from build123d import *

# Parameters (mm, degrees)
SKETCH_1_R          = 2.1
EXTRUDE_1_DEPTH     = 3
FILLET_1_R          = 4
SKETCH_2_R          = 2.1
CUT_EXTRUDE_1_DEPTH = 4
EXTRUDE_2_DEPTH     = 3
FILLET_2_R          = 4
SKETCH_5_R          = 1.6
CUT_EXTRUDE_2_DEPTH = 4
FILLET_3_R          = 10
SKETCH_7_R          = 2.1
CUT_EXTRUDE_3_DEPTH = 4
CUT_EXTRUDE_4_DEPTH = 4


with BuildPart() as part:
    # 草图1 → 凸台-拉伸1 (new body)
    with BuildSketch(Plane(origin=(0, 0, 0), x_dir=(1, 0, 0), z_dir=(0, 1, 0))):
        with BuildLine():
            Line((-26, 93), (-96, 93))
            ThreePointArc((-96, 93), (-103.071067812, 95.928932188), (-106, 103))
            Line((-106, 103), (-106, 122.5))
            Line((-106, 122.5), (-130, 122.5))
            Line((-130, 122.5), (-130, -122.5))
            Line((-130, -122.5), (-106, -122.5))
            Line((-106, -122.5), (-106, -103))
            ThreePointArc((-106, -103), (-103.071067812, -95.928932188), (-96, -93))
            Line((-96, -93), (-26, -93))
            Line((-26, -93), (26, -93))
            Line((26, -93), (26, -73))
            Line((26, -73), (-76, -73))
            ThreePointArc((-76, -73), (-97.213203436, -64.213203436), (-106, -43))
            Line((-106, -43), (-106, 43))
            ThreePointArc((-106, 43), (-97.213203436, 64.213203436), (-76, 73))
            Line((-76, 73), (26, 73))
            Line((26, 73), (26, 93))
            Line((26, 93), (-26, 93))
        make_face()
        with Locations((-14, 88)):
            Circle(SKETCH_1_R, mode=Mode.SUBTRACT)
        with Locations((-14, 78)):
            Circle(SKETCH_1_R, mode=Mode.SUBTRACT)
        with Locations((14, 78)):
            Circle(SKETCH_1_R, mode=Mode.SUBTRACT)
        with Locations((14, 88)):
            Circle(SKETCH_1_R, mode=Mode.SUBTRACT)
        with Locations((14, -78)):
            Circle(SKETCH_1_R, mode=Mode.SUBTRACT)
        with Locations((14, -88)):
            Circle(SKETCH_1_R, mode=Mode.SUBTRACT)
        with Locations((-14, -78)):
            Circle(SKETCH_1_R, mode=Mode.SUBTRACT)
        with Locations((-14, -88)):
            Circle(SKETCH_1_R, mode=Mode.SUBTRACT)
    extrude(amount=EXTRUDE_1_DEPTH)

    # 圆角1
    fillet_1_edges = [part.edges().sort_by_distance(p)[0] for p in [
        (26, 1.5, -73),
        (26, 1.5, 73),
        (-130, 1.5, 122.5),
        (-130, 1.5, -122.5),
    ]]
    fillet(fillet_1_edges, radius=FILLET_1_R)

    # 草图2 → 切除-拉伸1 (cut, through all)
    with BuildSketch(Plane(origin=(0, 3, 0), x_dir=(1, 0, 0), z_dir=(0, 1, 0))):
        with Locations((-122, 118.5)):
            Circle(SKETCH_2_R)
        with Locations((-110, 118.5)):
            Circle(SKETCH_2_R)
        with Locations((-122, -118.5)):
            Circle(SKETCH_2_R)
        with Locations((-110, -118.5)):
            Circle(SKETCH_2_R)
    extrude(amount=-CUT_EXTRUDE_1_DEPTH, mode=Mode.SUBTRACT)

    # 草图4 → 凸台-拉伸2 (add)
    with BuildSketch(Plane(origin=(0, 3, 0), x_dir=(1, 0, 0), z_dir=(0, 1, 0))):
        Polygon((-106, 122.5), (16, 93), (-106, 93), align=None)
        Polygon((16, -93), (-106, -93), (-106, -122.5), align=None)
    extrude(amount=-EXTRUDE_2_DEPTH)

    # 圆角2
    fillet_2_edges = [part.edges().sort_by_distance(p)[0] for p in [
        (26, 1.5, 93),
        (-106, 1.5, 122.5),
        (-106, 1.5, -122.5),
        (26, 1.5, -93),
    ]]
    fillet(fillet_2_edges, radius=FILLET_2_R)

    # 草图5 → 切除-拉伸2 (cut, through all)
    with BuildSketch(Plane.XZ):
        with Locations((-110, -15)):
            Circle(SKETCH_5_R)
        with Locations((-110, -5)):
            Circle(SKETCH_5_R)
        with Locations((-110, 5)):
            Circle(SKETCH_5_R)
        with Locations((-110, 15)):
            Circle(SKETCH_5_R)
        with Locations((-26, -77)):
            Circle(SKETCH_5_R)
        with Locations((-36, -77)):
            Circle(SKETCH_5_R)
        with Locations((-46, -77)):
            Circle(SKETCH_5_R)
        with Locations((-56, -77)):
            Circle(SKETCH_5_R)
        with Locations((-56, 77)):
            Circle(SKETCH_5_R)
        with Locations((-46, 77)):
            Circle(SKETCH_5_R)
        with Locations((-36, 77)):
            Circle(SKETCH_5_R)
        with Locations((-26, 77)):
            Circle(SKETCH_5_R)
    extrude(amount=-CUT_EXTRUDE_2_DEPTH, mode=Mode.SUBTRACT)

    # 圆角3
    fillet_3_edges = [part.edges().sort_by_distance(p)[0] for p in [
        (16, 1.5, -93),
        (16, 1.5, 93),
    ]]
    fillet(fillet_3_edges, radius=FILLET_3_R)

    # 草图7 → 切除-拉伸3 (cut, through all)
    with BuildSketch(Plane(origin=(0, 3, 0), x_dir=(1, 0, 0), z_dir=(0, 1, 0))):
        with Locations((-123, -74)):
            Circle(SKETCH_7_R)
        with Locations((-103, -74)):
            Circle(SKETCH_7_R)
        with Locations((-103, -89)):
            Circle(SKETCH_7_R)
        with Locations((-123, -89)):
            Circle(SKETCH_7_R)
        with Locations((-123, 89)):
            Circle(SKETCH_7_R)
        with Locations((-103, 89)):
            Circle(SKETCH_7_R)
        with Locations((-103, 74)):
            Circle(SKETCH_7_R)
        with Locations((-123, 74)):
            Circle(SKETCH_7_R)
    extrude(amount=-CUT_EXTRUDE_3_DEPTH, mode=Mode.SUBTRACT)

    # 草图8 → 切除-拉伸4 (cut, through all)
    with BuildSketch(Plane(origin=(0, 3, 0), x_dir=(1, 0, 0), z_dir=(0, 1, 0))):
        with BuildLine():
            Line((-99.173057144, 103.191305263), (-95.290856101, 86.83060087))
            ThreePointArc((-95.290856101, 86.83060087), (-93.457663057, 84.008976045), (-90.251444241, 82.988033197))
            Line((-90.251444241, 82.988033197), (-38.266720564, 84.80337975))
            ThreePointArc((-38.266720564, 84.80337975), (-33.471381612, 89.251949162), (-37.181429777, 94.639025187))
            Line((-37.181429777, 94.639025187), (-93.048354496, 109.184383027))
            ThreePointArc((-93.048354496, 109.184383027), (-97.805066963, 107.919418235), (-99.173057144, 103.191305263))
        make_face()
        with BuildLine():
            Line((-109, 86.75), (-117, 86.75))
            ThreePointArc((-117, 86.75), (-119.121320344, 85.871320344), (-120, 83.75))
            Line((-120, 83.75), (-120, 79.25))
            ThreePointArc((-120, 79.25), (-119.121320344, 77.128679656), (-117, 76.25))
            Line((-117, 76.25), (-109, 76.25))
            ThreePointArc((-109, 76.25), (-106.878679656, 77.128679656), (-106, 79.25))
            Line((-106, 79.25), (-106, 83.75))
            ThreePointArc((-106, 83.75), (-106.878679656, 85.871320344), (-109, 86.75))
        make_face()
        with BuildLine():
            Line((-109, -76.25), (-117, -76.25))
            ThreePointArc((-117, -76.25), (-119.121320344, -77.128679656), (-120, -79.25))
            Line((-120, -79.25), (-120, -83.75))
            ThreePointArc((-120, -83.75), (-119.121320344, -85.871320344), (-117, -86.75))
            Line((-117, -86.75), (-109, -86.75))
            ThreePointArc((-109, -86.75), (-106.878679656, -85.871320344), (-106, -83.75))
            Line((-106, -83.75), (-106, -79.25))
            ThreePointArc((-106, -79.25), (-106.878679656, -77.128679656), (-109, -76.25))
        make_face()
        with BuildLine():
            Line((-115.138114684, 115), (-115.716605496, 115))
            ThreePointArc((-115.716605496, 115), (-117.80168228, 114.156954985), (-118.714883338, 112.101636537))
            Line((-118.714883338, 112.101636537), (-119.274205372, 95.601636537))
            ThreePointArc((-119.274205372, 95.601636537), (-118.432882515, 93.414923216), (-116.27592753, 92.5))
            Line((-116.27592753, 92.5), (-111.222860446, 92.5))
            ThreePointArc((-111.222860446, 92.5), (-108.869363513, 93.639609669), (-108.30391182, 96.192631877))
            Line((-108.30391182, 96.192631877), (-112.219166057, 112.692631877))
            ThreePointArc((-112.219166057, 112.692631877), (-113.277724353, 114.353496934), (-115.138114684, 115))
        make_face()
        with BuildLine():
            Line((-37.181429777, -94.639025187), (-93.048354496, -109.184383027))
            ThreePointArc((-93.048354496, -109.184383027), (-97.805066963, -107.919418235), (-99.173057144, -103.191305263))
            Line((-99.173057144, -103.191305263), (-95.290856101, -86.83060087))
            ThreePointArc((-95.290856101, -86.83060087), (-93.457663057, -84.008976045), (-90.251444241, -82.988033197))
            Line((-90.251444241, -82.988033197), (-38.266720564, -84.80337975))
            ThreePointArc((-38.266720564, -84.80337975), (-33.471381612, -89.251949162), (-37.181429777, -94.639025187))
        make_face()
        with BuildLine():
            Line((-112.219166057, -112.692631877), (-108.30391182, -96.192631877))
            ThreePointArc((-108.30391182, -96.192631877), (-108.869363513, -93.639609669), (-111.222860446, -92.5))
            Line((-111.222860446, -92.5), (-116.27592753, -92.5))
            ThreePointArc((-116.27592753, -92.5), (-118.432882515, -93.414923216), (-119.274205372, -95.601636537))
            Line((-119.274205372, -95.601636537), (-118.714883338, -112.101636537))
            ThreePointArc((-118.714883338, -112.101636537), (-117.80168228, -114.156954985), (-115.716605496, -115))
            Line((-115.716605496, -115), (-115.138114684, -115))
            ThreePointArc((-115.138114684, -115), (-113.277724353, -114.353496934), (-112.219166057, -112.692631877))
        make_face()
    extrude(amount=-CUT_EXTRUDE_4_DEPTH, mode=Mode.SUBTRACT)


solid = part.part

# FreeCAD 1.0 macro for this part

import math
import FreeCAD as App
import Part
import Sketcher

V = App.Vector
Q = App.Units.Quantity


def edges_at(feature, points):
    """Names of the edges that pass closest to the given points."""
    edges = feature.Shape.Edges
    near = lambda p: min(range(len(edges)), key=lambda i: edges[i].distToShape(Part.Vertex(*p))[0])
    return sorted({f"Edge{near(p) + 1}" for p in points})

doc = App.newDocument("Part")
params = doc.addObject("Spreadsheet::Sheet", "Params")
for row, (alias, value) in enumerate([
    ("sketch1_radius", "10 mm"),
    ("sketch1_radius2", "30 mm"),
    ("sketch1_diameter", "4.2 mm"),
    ("sketch1_width", "24 mm"),
    ("sketch1_width2", "122 mm"),
    ("pad1_length", "3 mm"),
    ("fillet_radius", "4 mm"),
    ("sketch2_diameter", "4.2 mm"),
    ("sketch3_width", "122 mm"),
    ("sketch3_height", "29.5 mm"),
    ("pad2_length", "3 mm"),
    ("fillet2_radius", "4 mm"),
    ("sketch4_diameter", "3.2 mm"),
    ("fillet3_radius", "10 mm"),
    ("sketch5_diameter", "4.2 mm"),
    ("sketch6_radius", "5 mm"),
    ("sketch6_radius2", "3 mm"),
    ("sketch6_width", "8 mm"),
    ("sketch6_height", "4.5 mm"),
], start=1):
    params.set(f"A{row}", alias)
    params.set(f"B{row}", "=" + value)
    params.setAlias(f"B{row}", alias)

body = doc.addObject("PartDesign::Body", "Body")

sketch1 = body.newObject("Sketcher::SketchObject", "Sketch")
sketch1.AttachmentSupport = (doc.getObject("XZ_Plane"), [""])
sketch1.MapMode = "FlatFace"
sketch1.addGeometry(Part.ArcOfCircle(Part.Circle(V(-96, -103, 0), V(0, 0, 1), 10), math.radians(90), math.radians(180)), False)
sketch1.addGeometry(Part.LineSegment(V(-106, -103, 0), V(-106, -122.5, 0)), False)
sketch1.addGeometry(Part.LineSegment(V(-106, -122.5, 0), V(-130, -122.5, 0)), False)
sketch1.addGeometry(Part.LineSegment(V(-130, -122.5, 0), V(-130, 122.5, 0)), False)
sketch1.addGeometry(Part.LineSegment(V(-130, 122.5, 0), V(-106, 122.5, 0)), False)
sketch1.addGeometry(Part.LineSegment(V(-106, 122.5, 0), V(-106, 103, 0)), False)
sketch1.addGeometry(Part.ArcOfCircle(Part.Circle(V(-96, 103, 0), V(0, 0, 1), 10), math.radians(180), math.radians(270)), False)
sketch1.addGeometry(Part.LineSegment(V(-96, 93, 0), V(26, 93, 0)), False)
sketch1.addGeometry(Part.LineSegment(V(26, 93, 0), V(26, 73, 0)), False)
sketch1.addGeometry(Part.LineSegment(V(26, 73, 0), V(-76, 73, 0)), False)
sketch1.addGeometry(Part.ArcOfCircle(Part.Circle(V(-76, 43, 0), V(0, 0, 1), 30), math.radians(90), math.radians(180)), False)
sketch1.addGeometry(Part.LineSegment(V(-106, 43, 0), V(-106, -43, 0)), False)
sketch1.addGeometry(Part.ArcOfCircle(Part.Circle(V(-76, -43, 0), V(0, 0, 1), 30), math.radians(180), math.radians(270)), False)
sketch1.addGeometry(Part.LineSegment(V(-76, -73, 0), V(26, -73, 0)), False)
sketch1.addGeometry(Part.LineSegment(V(26, -73, 0), V(26, -93, 0)), False)
sketch1.addGeometry(Part.LineSegment(V(26, -93, 0), V(-96, -93, 0)), False)
sketch1.addGeometry(Part.Circle(V(-14, 88, 0), V(0, 0, 1), 2.1), False)
sketch1.addGeometry(Part.Circle(V(-14, 78, 0), V(0, 0, 1), 2.1), False)
sketch1.addGeometry(Part.Circle(V(14, 88, 0), V(0, 0, 1), 2.1), False)
sketch1.addGeometry(Part.Circle(V(14, 78, 0), V(0, 0, 1), 2.1), False)
sketch1.addGeometry(Part.Circle(V(-14, -78, 0), V(0, 0, 1), 2.1), False)
sketch1.addGeometry(Part.Circle(V(-14, -88, 0), V(0, 0, 1), 2.1), False)
sketch1.addGeometry(Part.Circle(V(14, -78, 0), V(0, 0, 1), 2.1), False)
sketch1.addGeometry(Part.Circle(V(14, -88, 0), V(0, 0, 1), 2.1), False)
sketch1.addConstraint(Sketcher.Constraint("Tangent", 0, 2, 1, 1))
sketch1.addConstraint(Sketcher.Constraint("Coincident", 1, 2, 2, 1))
sketch1.addConstraint(Sketcher.Constraint("Coincident", 2, 2, 3, 1))
sketch1.addConstraint(Sketcher.Constraint("Coincident", 3, 2, 4, 1))
sketch1.addConstraint(Sketcher.Constraint("Coincident", 4, 2, 5, 1))
sketch1.addConstraint(Sketcher.Constraint("Tangent", 5, 2, 6, 1))
sketch1.addConstraint(Sketcher.Constraint("Tangent", 6, 2, 7, 1))
sketch1.addConstraint(Sketcher.Constraint("Coincident", 7, 2, 8, 1))
sketch1.addConstraint(Sketcher.Constraint("Coincident", 8, 2, 9, 1))
sketch1.addConstraint(Sketcher.Constraint("Tangent", 9, 2, 10, 1))
sketch1.addConstraint(Sketcher.Constraint("Tangent", 10, 2, 11, 1))
sketch1.addConstraint(Sketcher.Constraint("Tangent", 11, 2, 12, 1))
sketch1.addConstraint(Sketcher.Constraint("Tangent", 12, 2, 13, 1))
sketch1.addConstraint(Sketcher.Constraint("Coincident", 13, 2, 14, 1))
sketch1.addConstraint(Sketcher.Constraint("Coincident", 14, 2, 15, 1))
sketch1.addConstraint(Sketcher.Constraint("Tangent", 15, 2, 0, 1))
sketch1.addConstraint(Sketcher.Constraint("Vertical", 1))
sketch1.addConstraint(Sketcher.Constraint("Horizontal", 2))
sketch1.addConstraint(Sketcher.Constraint("Vertical", 3))
sketch1.addConstraint(Sketcher.Constraint("Horizontal", 4))
sketch1.addConstraint(Sketcher.Constraint("Vertical", 5))
sketch1.addConstraint(Sketcher.Constraint("Horizontal", 7))
sketch1.addConstraint(Sketcher.Constraint("Vertical", 8))
sketch1.addConstraint(Sketcher.Constraint("Horizontal", 9))
sketch1.addConstraint(Sketcher.Constraint("Vertical", 11))
sketch1.addConstraint(Sketcher.Constraint("Horizontal", 13))
sketch1.addConstraint(Sketcher.Constraint("Vertical", 14))
sketch1.addConstraint(Sketcher.Constraint("Horizontal", 15))
sketch1.addConstraint(Sketcher.Constraint("Equal", 0, 6))
sketch1.addConstraint(Sketcher.Constraint("Equal", 10, 12))
sketch1.addConstraint(Sketcher.Constraint("Equal", 16, 17))
sketch1.addConstraint(Sketcher.Constraint("Equal", 17, 18))
sketch1.addConstraint(Sketcher.Constraint("Equal", 18, 19))
sketch1.addConstraint(Sketcher.Constraint("Equal", 19, 20))
sketch1.addConstraint(Sketcher.Constraint("Equal", 20, 21))
sketch1.addConstraint(Sketcher.Constraint("Equal", 21, 22))
sketch1.addConstraint(Sketcher.Constraint("Equal", 22, 23))
sketch1.addConstraint(Sketcher.Constraint("Symmetric", 19, 3, 20, 3, -1, 1))
sketch1.addConstraint(Sketcher.Constraint("Symmetric", 18, 3, 21, 3, -1, 1))
sketch1.addConstraint(Sketcher.Constraint("Symmetric", 17, 3, 22, 3, -1, 1))
sketch1.addConstraint(Sketcher.Constraint("Symmetric", 16, 3, 23, 3, -1, 1))
sketch1.addConstraint(Sketcher.Constraint("Symmetric", 16, 3, 18, 3, -2))
sketch1.addConstraint(Sketcher.Constraint("Symmetric", 17, 3, 19, 3, -2))
sketch1.addConstraint(Sketcher.Constraint("Symmetric", 0, 3, 6, 3, -1))
sketch1.addConstraint(Sketcher.Constraint("Symmetric", 8, 2, 13, 2, -1))
sketch1.addConstraint(Sketcher.Constraint("Vertical", 16, 3, 17, 3))
sketch1.addConstraint(Sketcher.Constraint("Vertical", 5, 2, 10, 2))
sketch1.addConstraint(Sketcher.Constraint("Equal", 1, 5))
sketch1.addConstraint(Sketcher.Constraint("Radius", 0, Q("10 mm")))
sketch1.addConstraint(Sketcher.Constraint("Radius", 10, Q("30 mm")))
sketch1.addConstraint(Sketcher.Constraint("Diameter", 16, Q("4.2 mm")))
sketch1.addConstraint(Sketcher.Constraint("DistanceX", 2, 2, 2, 1, Q("24 mm")))
sketch1.addConstraint(Sketcher.Constraint("DistanceX", 7, 1, 7, 2, Q("122 mm")))
sketch1.addConstraint(Sketcher.Constraint("DistanceY", 3, 1, 3, 2, Q("245 mm")))
sketch1.addConstraint(Sketcher.Constraint("DistanceY", 8, 2, 8, 1, Q("20 mm")))
sketch1.addConstraint(Sketcher.Constraint("DistanceY", 11, 2, 11, 1, Q("86 mm")))
sketch1.addConstraint(Sketcher.Constraint("DistanceX", 0, 3, -1, 1, Q("96 mm")))
sketch1.addConstraint(Sketcher.Constraint("DistanceX", 16, 3, -1, 1, Q("14 mm")))
sketch1.addConstraint(Sketcher.Constraint("DistanceY", -1, 1, 16, 3, Q("88 mm")))
sketch1.addConstraint(Sketcher.Constraint("DistanceY", -1, 1, 17, 3, Q("78 mm")))
sketch1.setExpression("Constraints[48]", "Params.sketch1_radius")
sketch1.setExpression("Constraints[49]", "Params.sketch1_radius2")
sketch1.setExpression("Constraints[50]", "Params.sketch1_diameter")
sketch1.setExpression("Constraints[51]", "Params.sketch1_width")
sketch1.setExpression("Constraints[52]", "Params.sketch1_width2")
pad1 = body.newObject("PartDesign::Pad", "Pad")
pad1.Profile = sketch1
pad1.setExpression("Length", "Params.pad1_length")
pad1.Reversed = True
doc.recompute()

fillet = body.newObject("PartDesign::Fillet", "Fillet")
fillet.Base = (pad1, edges_at(pad1, [
    (26, 1.5, -73),
    (26, 1.5, 73),
    (-130, 1.5, 122.5),
    (-130, 1.5, -122.5),
]))
fillet.setExpression("Radius", "Params.fillet_radius")

sketch2 = body.newObject("Sketcher::SketchObject", "Sketch001")
sketch2.AttachmentSupport = (doc.getObject("XZ_Plane"), [""])
sketch2.MapMode = "FlatFace"
sketch2.AttachmentOffset = App.Placement(V(0, 0, -3), App.Rotation())
sketch2.addGeometry(Part.Circle(V(-122, -118.5, 0), V(0, 0, 1), 2.1), False)
sketch2.addGeometry(Part.Circle(V(-110, -118.5, 0), V(0, 0, 1), 2.1), False)
sketch2.addGeometry(Part.Circle(V(-122, 118.5, 0), V(0, 0, 1), 2.1), False)
sketch2.addGeometry(Part.Circle(V(-110, 118.5, 0), V(0, 0, 1), 2.1), False)
sketch2.addConstraint(Sketcher.Constraint("Equal", 0, 1))
sketch2.addConstraint(Sketcher.Constraint("Equal", 1, 2))
sketch2.addConstraint(Sketcher.Constraint("Equal", 2, 3))
sketch2.addConstraint(Sketcher.Constraint("Symmetric", 0, 3, 2, 3, -1))
sketch2.addConstraint(Sketcher.Constraint("Symmetric", 1, 3, 3, 3, -1))
sketch2.addConstraint(Sketcher.Constraint("Horizontal", 0, 3, 1, 3))
sketch2.addConstraint(Sketcher.Constraint("Diameter", 0, Q("4.2 mm")))
sketch2.addConstraint(Sketcher.Constraint("DistanceX", 0, 3, -1, 1, Q("122 mm")))
sketch2.addConstraint(Sketcher.Constraint("DistanceX", 1, 3, -1, 1, Q("110 mm")))
sketch2.addConstraint(Sketcher.Constraint("DistanceY", 0, 3, 2, 3, Q("237 mm")))
sketch2.setExpression("Constraints[6]", "Params.sketch2_diameter")
pocket1 = body.newObject("PartDesign::Pocket", "Pocket")
pocket1.Profile = sketch2
pocket1.Type = "ThroughAll"
pocket1.Reversed = True

sketch3 = body.newObject("Sketcher::SketchObject", "Sketch002")
sketch3.AttachmentSupport = (doc.getObject("XZ_Plane"), [""])
sketch3.MapMode = "FlatFace"
sketch3.AttachmentOffset = App.Placement(V(0, 0, -3), App.Rotation())
sketch3.addGeometry(Part.LineSegment(V(16, -93, 0), V(-106, -122, 0)), False)
sketch3.addGeometry(Part.LineSegment(V(-106, -122, 0), V(-106, -93, 0)), False)
sketch3.addGeometry(Part.LineSegment(V(-106, -93, 0), V(16, -93, 0)), False)
sketch3.addGeometry(Part.LineSegment(V(16, 93, 0), V(-106, 93, 0)), False)
sketch3.addGeometry(Part.LineSegment(V(-106, 93, 0), V(-106, 122, 0)), False)
sketch3.addGeometry(Part.LineSegment(V(-106, 122, 0), V(16, 93, 0)), False)
sketch3.addConstraint(Sketcher.Constraint("Coincident", 0, 2, 1, 1))
sketch3.addConstraint(Sketcher.Constraint("Coincident", 1, 2, 2, 1))
sketch3.addConstraint(Sketcher.Constraint("Coincident", 2, 2, 0, 1))
sketch3.addConstraint(Sketcher.Constraint("Coincident", 3, 2, 4, 1))
sketch3.addConstraint(Sketcher.Constraint("Coincident", 4, 2, 5, 1))
sketch3.addConstraint(Sketcher.Constraint("Coincident", 5, 2, 3, 1))
sketch3.addConstraint(Sketcher.Constraint("Vertical", 1))
sketch3.addConstraint(Sketcher.Constraint("Horizontal", 2))
sketch3.addConstraint(Sketcher.Constraint("Horizontal", 3))
sketch3.addConstraint(Sketcher.Constraint("Vertical", 4))
sketch3.addConstraint(Sketcher.Constraint("Symmetric", 1, 2, 3, 2, -1))
sketch3.addConstraint(Sketcher.Constraint("Vertical", 2, 2, 5, 2))
sketch3.addConstraint(Sketcher.Constraint("Equal", 1, 4))
sketch3.addConstraint(Sketcher.Constraint("DistanceX", 2, 1, 2, 2, Q("122 mm")))
sketch3.addConstraint(Sketcher.Constraint("DistanceY", 1, 1, 1, 2, Q("29.5 mm")))
sketch3.addConstraint(Sketcher.Constraint("DistanceX", 0, 2, -1, 1, Q("106 mm")))
sketch3.addConstraint(Sketcher.Constraint("DistanceY", 1, 2, -1, 1, Q("93 mm")))
sketch3.setExpression("Constraints[13]", "Params.sketch3_width")
sketch3.setExpression("Constraints[14]", "Params.sketch3_height")
pad2 = body.newObject("PartDesign::Pad", "Pad001")
pad2.Profile = sketch3
pad2.setExpression("Length", "Params.pad2_length")
doc.recompute()

fillet2 = body.newObject("PartDesign::Fillet", "Fillet001")
fillet2.Base = (pad2, edges_at(pad2, [
    (26, 1.5, 93),
    (-106, 1.5, 122.5),
    (-106, 1.5, -122.5),
    (26, 1.5, -93),
]))
fillet2.setExpression("Radius", "Params.fillet2_radius")

sketch4 = body.newObject("Sketcher::SketchObject", "Sketch003")
sketch4.AttachmentSupport = (doc.getObject("XZ_Plane"), [""])
sketch4.MapMode = "FlatFace"
sketch4.addGeometry(Part.Circle(V(-110, -15, 0), V(0, 0, 1), 1.6), False)
sketch4.addGeometry(Part.Circle(V(-110, -5, 0), V(0, 0, 1), 1.6), False)
sketch4.addGeometry(Part.Circle(V(-110, 5, 0), V(0, 0, 1), 1.6), False)
sketch4.addGeometry(Part.Circle(V(-110, 15, 0), V(0, 0, 1), 1.6), False)
sketch4.addGeometry(Part.Circle(V(-26, -77, 0), V(0, 0, 1), 1.6), False)
sketch4.addGeometry(Part.Circle(V(-36, -77, 0), V(0, 0, 1), 1.6), False)
sketch4.addGeometry(Part.Circle(V(-46, -77, 0), V(0, 0, 1), 1.6), False)
sketch4.addGeometry(Part.Circle(V(-56, -77, 0), V(0, 0, 1), 1.6), False)
sketch4.addGeometry(Part.Circle(V(-56, 77, 0), V(0, 0, 1), 1.6), False)
sketch4.addGeometry(Part.Circle(V(-46, 77, 0), V(0, 0, 1), 1.6), False)
sketch4.addGeometry(Part.Circle(V(-36, 77, 0), V(0, 0, 1), 1.6), False)
sketch4.addGeometry(Part.Circle(V(-26, 77, 0), V(0, 0, 1), 1.6), False)
sketch4.addConstraint(Sketcher.Constraint("Equal", 0, 1))
sketch4.addConstraint(Sketcher.Constraint("Equal", 1, 2))
sketch4.addConstraint(Sketcher.Constraint("Equal", 2, 3))
sketch4.addConstraint(Sketcher.Constraint("Equal", 3, 4))
sketch4.addConstraint(Sketcher.Constraint("Equal", 4, 5))
sketch4.addConstraint(Sketcher.Constraint("Equal", 5, 6))
sketch4.addConstraint(Sketcher.Constraint("Equal", 6, 7))
sketch4.addConstraint(Sketcher.Constraint("Equal", 7, 8))
sketch4.addConstraint(Sketcher.Constraint("Equal", 8, 9))
sketch4.addConstraint(Sketcher.Constraint("Equal", 9, 10))
sketch4.addConstraint(Sketcher.Constraint("Equal", 10, 11))
sketch4.addConstraint(Sketcher.Constraint("Symmetric", 1, 3, 2, 3, -1))
sketch4.addConstraint(Sketcher.Constraint("Symmetric", 0, 3, 3, 3, -1))
sketch4.addConstraint(Sketcher.Constraint("Symmetric", 7, 3, 8, 3, -1))
sketch4.addConstraint(Sketcher.Constraint("Symmetric", 6, 3, 9, 3, -1))
sketch4.addConstraint(Sketcher.Constraint("Symmetric", 5, 3, 10, 3, -1))
sketch4.addConstraint(Sketcher.Constraint("Symmetric", 4, 3, 11, 3, -1))
sketch4.addConstraint(Sketcher.Constraint("Horizontal", 4, 3, 5, 3))
sketch4.addConstraint(Sketcher.Constraint("Horizontal", 5, 3, 6, 3))
sketch4.addConstraint(Sketcher.Constraint("Horizontal", 6, 3, 7, 3))
sketch4.addConstraint(Sketcher.Constraint("Vertical", 0, 3, 1, 3))
sketch4.addConstraint(Sketcher.Constraint("Diameter", 0, Q("3.2 mm")))
sketch4.addConstraint(Sketcher.Constraint("DistanceX", 0, 3, -1, 1, Q("110 mm")))
sketch4.addConstraint(Sketcher.Constraint("DistanceY", 0, 3, -1, 1, Q("15 mm")))
sketch4.addConstraint(Sketcher.Constraint("DistanceY", 1, 3, -1, 1, Q("5 mm")))
sketch4.addConstraint(Sketcher.Constraint("DistanceX", 4, 3, -1, 1, Q("26 mm")))
sketch4.addConstraint(Sketcher.Constraint("DistanceY", 4, 3, -1, 1, Q("77 mm")))
sketch4.addConstraint(Sketcher.Constraint("DistanceX", 5, 3, -1, 1, Q("36 mm")))
sketch4.addConstraint(Sketcher.Constraint("DistanceX", 6, 3, -1, 1, Q("46 mm")))
sketch4.addConstraint(Sketcher.Constraint("DistanceX", 7, 3, -1, 1, Q("56 mm")))
sketch4.setExpression("Constraints[21]", "Params.sketch4_diameter")
pocket2 = body.newObject("PartDesign::Pocket", "Pocket001")
pocket2.Profile = sketch4
pocket2.Type = "ThroughAll"
doc.recompute()

fillet3 = body.newObject("PartDesign::Fillet", "Fillet002")
fillet3.Base = (pocket2, edges_at(pocket2, [(16, 1.5, -93), (16, 1.5, 93)]))
fillet3.setExpression("Radius", "Params.fillet3_radius")

sketch5 = body.newObject("Sketcher::SketchObject", "Sketch004")
sketch5.AttachmentSupport = (doc.getObject("XZ_Plane"), [""])
sketch5.MapMode = "FlatFace"
sketch5.AttachmentOffset = App.Placement(V(0, 0, -3), App.Rotation())
sketch5.addGeometry(Part.Circle(V(-123, 74, 0), V(0, 0, 1), 2.1), False)
sketch5.addGeometry(Part.Circle(V(-103, 74, 0), V(0, 0, 1), 2.1), False)
sketch5.addGeometry(Part.Circle(V(-103, 89, 0), V(0, 0, 1), 2.1), False)
sketch5.addGeometry(Part.Circle(V(-123, 89, 0), V(0, 0, 1), 2.1), False)
sketch5.addGeometry(Part.Circle(V(-123, -89, 0), V(0, 0, 1), 2.1), False)
sketch5.addGeometry(Part.Circle(V(-103, -89, 0), V(0, 0, 1), 2.1), False)
sketch5.addGeometry(Part.Circle(V(-103, -74, 0), V(0, 0, 1), 2.1), False)
sketch5.addGeometry(Part.Circle(V(-123, -74, 0), V(0, 0, 1), 2.1), False)
sketch5.addConstraint(Sketcher.Constraint("Equal", 0, 1))
sketch5.addConstraint(Sketcher.Constraint("Equal", 1, 2))
sketch5.addConstraint(Sketcher.Constraint("Equal", 2, 3))
sketch5.addConstraint(Sketcher.Constraint("Equal", 3, 4))
sketch5.addConstraint(Sketcher.Constraint("Equal", 4, 5))
sketch5.addConstraint(Sketcher.Constraint("Equal", 5, 6))
sketch5.addConstraint(Sketcher.Constraint("Equal", 6, 7))
sketch5.addConstraint(Sketcher.Constraint("Symmetric", 3, 3, 4, 3, -1))
sketch5.addConstraint(Sketcher.Constraint("Symmetric", 2, 3, 5, 3, -1))
sketch5.addConstraint(Sketcher.Constraint("Symmetric", 1, 3, 6, 3, -1))
sketch5.addConstraint(Sketcher.Constraint("Symmetric", 0, 3, 7, 3, -1))
sketch5.addConstraint(Sketcher.Constraint("Horizontal", 0, 3, 1, 3))
sketch5.addConstraint(Sketcher.Constraint("Horizontal", 2, 3, 3, 3))
sketch5.addConstraint(Sketcher.Constraint("Vertical", 1, 3, 2, 3))
sketch5.addConstraint(Sketcher.Constraint("Vertical", 0, 3, 3, 3))
sketch5.addConstraint(Sketcher.Constraint("Diameter", 0, Q("4.2 mm")))
sketch5.addConstraint(Sketcher.Constraint("DistanceX", 0, 3, -1, 1, Q("123 mm")))
sketch5.addConstraint(Sketcher.Constraint("DistanceY", -1, 1, 0, 3, Q("74 mm")))
sketch5.addConstraint(Sketcher.Constraint("DistanceX", 1, 3, -1, 1, Q("103 mm")))
sketch5.addConstraint(Sketcher.Constraint("DistanceY", -1, 1, 2, 3, Q("89 mm")))
sketch5.setExpression("Constraints[15]", "Params.sketch5_diameter")
pocket3 = body.newObject("PartDesign::Pocket", "Pocket002")
pocket3.Profile = sketch5
pocket3.Type = "ThroughAll"
pocket3.Reversed = True

sketch6 = body.newObject("Sketcher::SketchObject", "Sketch005")
sketch6.AttachmentSupport = (doc.getObject("XZ_Plane"), [""])
sketch6.MapMode = "FlatFace"
sketch6.AttachmentOffset = App.Placement(V(0, 0, -3), App.Rotation())
sketch6.addGeometry(Part.LineSegment(V(-99.2, -103.2, 0), V(-95.3, -86.8, 0)), False)
sketch6.addGeometry(Part.ArcOfCircle(Part.Circle(V(-90.4, -88, 0), V(0, 0, 1), 5), math.radians(88), math.radians(167)), False)
sketch6.addGeometry(Part.LineSegment(V(-90.3, -83, 0), V(-38.3, -84.8, 0)), False)
sketch6.addGeometry(Part.ArcOfCircle(Part.Circle(V(-38.4, -89.8, 0), V(0, 0, 1), 5), math.radians(-75), math.radians(88)), False)
sketch6.addGeometry(Part.LineSegment(V(-37.2, -94.6, 0), V(-93, -109.2, 0)), False)
sketch6.addGeometry(Part.ArcOfCircle(Part.Circle(V(-94.3, -104.3, 0), V(0, 0, 1), 5), math.radians(167), math.radians(285)), False)
sketch6.addGeometry(Part.LineSegment(V(-109, -86.8, 0), V(-117, -86.8, 0)), False)
sketch6.addGeometry(Part.ArcOfCircle(Part.Circle(V(-117, -83.8, 0), V(0, 0, 1), 3), math.radians(180), math.radians(270)), False)
sketch6.addGeometry(Part.LineSegment(V(-120, -83.8, 0), V(-120, -79.2, 0)), False)
sketch6.addGeometry(Part.ArcOfCircle(Part.Circle(V(-117, -79.2, 0), V(0, 0, 1), 3), math.radians(90), math.radians(180)), False)
sketch6.addGeometry(Part.LineSegment(V(-117, -76.2, 0), V(-109, -76.2, 0)), False)
sketch6.addGeometry(Part.ArcOfCircle(Part.Circle(V(-109, -79.2, 0), V(0, 0, 1), 3), math.radians(0), math.radians(90)), False)
sketch6.addGeometry(Part.LineSegment(V(-106, -79.2, 0), V(-106, -83.8, 0)), False)
sketch6.addGeometry(Part.ArcOfCircle(Part.Circle(V(-109, -83.8, 0), V(0, 0, 1), 3), math.radians(-90), math.radians(0)), False)
sketch6.addGeometry(Part.LineSegment(V(-109, 76.2, 0), V(-117, 76.2, 0)), False)
sketch6.addGeometry(Part.ArcOfCircle(Part.Circle(V(-117, 79.2, 0), V(0, 0, 1), 3), math.radians(180), math.radians(270)), False)
sketch6.addGeometry(Part.LineSegment(V(-120, 79.2, 0), V(-120, 83.8, 0)), False)
sketch6.addGeometry(Part.ArcOfCircle(Part.Circle(V(-117, 83.8, 0), V(0, 0, 1), 3), math.radians(90), math.radians(180)), False)
sketch6.addGeometry(Part.LineSegment(V(-117, 86.8, 0), V(-109, 86.8, 0)), False)
sketch6.addGeometry(Part.ArcOfCircle(Part.Circle(V(-109, 83.8, 0), V(0, 0, 1), 3), math.radians(0), math.radians(90)), False)
sketch6.addGeometry(Part.LineSegment(V(-106, 83.8, 0), V(-106, 79.2, 0)), False)
sketch6.addGeometry(Part.ArcOfCircle(Part.Circle(V(-109, 79.2, 0), V(0, 0, 1), 3), math.radians(-90), math.radians(0)), False)
sketch6.addGeometry(Part.LineSegment(V(-115.1, -115, 0), V(-115.7, -115, 0)), False)
sketch6.addGeometry(Part.ArcOfCircle(Part.Circle(V(-115.7, -112, 0), V(0, 0, 1), 3), math.radians(-178), math.radians(-90)), False)
sketch6.addGeometry(Part.LineSegment(V(-118.7, -112.1, 0), V(-119.3, -95.6, 0)), False)
sketch6.addGeometry(Part.ArcOfCircle(Part.Circle(V(-116.3, -95.5, 0), V(0, 0, 1), 3), math.radians(90), math.radians(182)), False)
sketch6.addGeometry(Part.LineSegment(V(-116.3, -92.5, 0), V(-111.2, -92.5, 0)), False)
sketch6.addGeometry(Part.ArcOfCircle(Part.Circle(V(-111.2, -95.5, 0), V(0, 0, 1), 3), math.radians(-13), math.radians(90)), False)
sketch6.addGeometry(Part.LineSegment(V(-108.3, -96.2, 0), V(-112.2, -112.7, 0)), False)
sketch6.addGeometry(Part.ArcOfCircle(Part.Circle(V(-115.1, -112, 0), V(0, 0, 1), 3), math.radians(-90), math.radians(-13)), False)
sketch6.addGeometry(Part.LineSegment(V(-93, 109.2, 0), V(-37.2, 94.6, 0)), False)
sketch6.addGeometry(Part.ArcOfCircle(Part.Circle(V(-38.4, 89.8, 0), V(0, 0, 1), 5), math.radians(-88), math.radians(75)), False)
sketch6.addGeometry(Part.LineSegment(V(-38.3, 84.8, 0), V(-90.3, 83, 0)), False)
sketch6.addGeometry(Part.ArcOfCircle(Part.Circle(V(-90.4, 88, 0), V(0, 0, 1), 5), math.radians(-167), math.radians(-88)), False)
sketch6.addGeometry(Part.LineSegment(V(-95.3, 86.8, 0), V(-99.2, 103.2, 0)), False)
sketch6.addGeometry(Part.ArcOfCircle(Part.Circle(V(-94.3, 104.3, 0), V(0, 0, 1), 5), math.radians(75), math.radians(193)), False)
sketch6.addGeometry(Part.LineSegment(V(-112.2, 112.7, 0), V(-108.3, 96.2, 0)), False)
sketch6.addGeometry(Part.ArcOfCircle(Part.Circle(V(-111.2, 95.5, 0), V(0, 0, 1), 3), math.radians(-90), math.radians(13)), False)
sketch6.addGeometry(Part.LineSegment(V(-111.2, 92.5, 0), V(-116.3, 92.5, 0)), False)
sketch6.addGeometry(Part.ArcOfCircle(Part.Circle(V(-116.3, 95.5, 0), V(0, 0, 1), 3), math.radians(178), math.radians(270)), False)
sketch6.addGeometry(Part.LineSegment(V(-119.3, 95.6, 0), V(-118.7, 112.1, 0)), False)
sketch6.addGeometry(Part.ArcOfCircle(Part.Circle(V(-115.7, 112, 0), V(0, 0, 1), 3), math.radians(90), math.radians(178)), False)
sketch6.addGeometry(Part.LineSegment(V(-115.7, 115, 0), V(-115.1, 115, 0)), False)
sketch6.addGeometry(Part.ArcOfCircle(Part.Circle(V(-115.1, 112, 0), V(0, 0, 1), 3), math.radians(13), math.radians(90)), False)
sketch6.addConstraint(Sketcher.Constraint("Tangent", 0, 2, 1, 2))
sketch6.addConstraint(Sketcher.Constraint("Tangent", 1, 1, 2, 1))
sketch6.addConstraint(Sketcher.Constraint("Tangent", 2, 2, 3, 2))
sketch6.addConstraint(Sketcher.Constraint("Tangent", 3, 1, 4, 1))
sketch6.addConstraint(Sketcher.Constraint("Tangent", 4, 2, 5, 2))
sketch6.addConstraint(Sketcher.Constraint("Tangent", 5, 1, 0, 1))
sketch6.addConstraint(Sketcher.Constraint("Tangent", 6, 2, 7, 2))
sketch6.addConstraint(Sketcher.Constraint("Tangent", 7, 1, 8, 1))
sketch6.addConstraint(Sketcher.Constraint("Tangent", 8, 2, 9, 2))
sketch6.addConstraint(Sketcher.Constraint("Tangent", 9, 1, 10, 1))
sketch6.addConstraint(Sketcher.Constraint("Tangent", 10, 2, 11, 2))
sketch6.addConstraint(Sketcher.Constraint("Tangent", 11, 1, 12, 1))
sketch6.addConstraint(Sketcher.Constraint("Tangent", 12, 2, 13, 2))
sketch6.addConstraint(Sketcher.Constraint("Tangent", 13, 1, 6, 1))
sketch6.addConstraint(Sketcher.Constraint("Tangent", 14, 2, 15, 2))
sketch6.addConstraint(Sketcher.Constraint("Tangent", 15, 1, 16, 1))
sketch6.addConstraint(Sketcher.Constraint("Tangent", 16, 2, 17, 2))
sketch6.addConstraint(Sketcher.Constraint("Tangent", 17, 1, 18, 1))
sketch6.addConstraint(Sketcher.Constraint("Tangent", 18, 2, 19, 2))
sketch6.addConstraint(Sketcher.Constraint("Tangent", 19, 1, 20, 1))
sketch6.addConstraint(Sketcher.Constraint("Tangent", 20, 2, 21, 2))
sketch6.addConstraint(Sketcher.Constraint("Tangent", 21, 1, 14, 1))
sketch6.addConstraint(Sketcher.Constraint("Tangent", 22, 2, 23, 2))
sketch6.addConstraint(Sketcher.Constraint("Tangent", 23, 1, 24, 1))
sketch6.addConstraint(Sketcher.Constraint("Tangent", 24, 2, 25, 2))
sketch6.addConstraint(Sketcher.Constraint("Tangent", 25, 1, 26, 1))
sketch6.addConstraint(Sketcher.Constraint("Tangent", 26, 2, 27, 2))
sketch6.addConstraint(Sketcher.Constraint("Tangent", 27, 1, 28, 1))
sketch6.addConstraint(Sketcher.Constraint("Tangent", 28, 2, 29, 2))
sketch6.addConstraint(Sketcher.Constraint("Tangent", 29, 1, 22, 1))
sketch6.addConstraint(Sketcher.Constraint("Tangent", 30, 2, 31, 2))
sketch6.addConstraint(Sketcher.Constraint("Tangent", 31, 1, 32, 1))
sketch6.addConstraint(Sketcher.Constraint("Tangent", 32, 2, 33, 2))
sketch6.addConstraint(Sketcher.Constraint("Tangent", 33, 1, 34, 1))
sketch6.addConstraint(Sketcher.Constraint("Tangent", 34, 2, 35, 2))
sketch6.addConstraint(Sketcher.Constraint("Tangent", 35, 1, 30, 1))
sketch6.addConstraint(Sketcher.Constraint("Tangent", 36, 2, 37, 2))
sketch6.addConstraint(Sketcher.Constraint("Tangent", 37, 1, 38, 1))
sketch6.addConstraint(Sketcher.Constraint("Tangent", 38, 2, 39, 2))
sketch6.addConstraint(Sketcher.Constraint("Tangent", 39, 1, 40, 1))
sketch6.addConstraint(Sketcher.Constraint("Tangent", 40, 2, 41, 2))
sketch6.addConstraint(Sketcher.Constraint("Tangent", 41, 1, 42, 1))
sketch6.addConstraint(Sketcher.Constraint("Tangent", 42, 2, 43, 2))
sketch6.addConstraint(Sketcher.Constraint("Tangent", 43, 1, 36, 1))
sketch6.addConstraint(Sketcher.Constraint("Horizontal", 6))
sketch6.addConstraint(Sketcher.Constraint("Vertical", 8))
sketch6.addConstraint(Sketcher.Constraint("Horizontal", 10))
sketch6.addConstraint(Sketcher.Constraint("Vertical", 12))
sketch6.addConstraint(Sketcher.Constraint("Horizontal", 14))
sketch6.addConstraint(Sketcher.Constraint("Vertical", 16))
sketch6.addConstraint(Sketcher.Constraint("Horizontal", 18))
sketch6.addConstraint(Sketcher.Constraint("Vertical", 20))
sketch6.addConstraint(Sketcher.Constraint("Horizontal", 22))
sketch6.addConstraint(Sketcher.Constraint("Horizontal", 26))
sketch6.addConstraint(Sketcher.Constraint("Horizontal", 38))
sketch6.addConstraint(Sketcher.Constraint("Horizontal", 42))
sketch6.addConstraint(Sketcher.Constraint("Equal", 1, 3))
sketch6.addConstraint(Sketcher.Constraint("Equal", 3, 5))
sketch6.addConstraint(Sketcher.Constraint("Equal", 7, 9))
sketch6.addConstraint(Sketcher.Constraint("Equal", 9, 11))
sketch6.addConstraint(Sketcher.Constraint("Equal", 11, 13))
sketch6.addConstraint(Sketcher.Constraint("Equal", 13, 15))
sketch6.addConstraint(Sketcher.Constraint("Equal", 15, 17))
sketch6.addConstraint(Sketcher.Constraint("Equal", 17, 19))
sketch6.addConstraint(Sketcher.Constraint("Equal", 19, 21))
sketch6.addConstraint(Sketcher.Constraint("Equal", 21, 23))
sketch6.addConstraint(Sketcher.Constraint("Equal", 23, 25))
sketch6.addConstraint(Sketcher.Constraint("Equal", 25, 27))
sketch6.addConstraint(Sketcher.Constraint("Equal", 27, 29))
sketch6.addConstraint(Sketcher.Constraint("Equal", 5, 31))
sketch6.addConstraint(Sketcher.Constraint("Equal", 31, 33))
sketch6.addConstraint(Sketcher.Constraint("Equal", 33, 35))
sketch6.addConstraint(Sketcher.Constraint("Equal", 29, 37))
sketch6.addConstraint(Sketcher.Constraint("Equal", 37, 39))
sketch6.addConstraint(Sketcher.Constraint("Equal", 39, 41))
sketch6.addConstraint(Sketcher.Constraint("Equal", 41, 43))
sketch6.addConstraint(Sketcher.Constraint("Symmetric", 9, 3, 15, 3, -1))
sketch6.addConstraint(Sketcher.Constraint("Symmetric", 13, 3, 19, 3, -1))
sketch6.addConstraint(Sketcher.Constraint("Symmetric", 3, 3, 31, 3, -1))
sketch6.addConstraint(Sketcher.Constraint("Symmetric", 1, 3, 33, 3, -1))
sketch6.addConstraint(Sketcher.Constraint("Symmetric", 5, 3, 35, 3, -1))
sketch6.addConstraint(Sketcher.Constraint("Symmetric", 27, 3, 37, 3, -1))
sketch6.addConstraint(Sketcher.Constraint("Symmetric", 23, 3, 41, 3, -1))
sketch6.addConstraint(Sketcher.Constraint("Parallel", 0, 28))
sketch6.addConstraint(Sketcher.Constraint("Parallel", 34, 36))
sketch6.addConstraint(Sketcher.Constraint("Vertical", 25, 3, 39, 3))
sketch6.addConstraint(Sketcher.Constraint("Radius", 1, Q("5 mm")))
sketch6.addConstraint(Sketcher.Constraint("Radius", 7, Q("3 mm")))
sketch6.addConstraint(Sketcher.Constraint("DistanceX", 6, 2, 6, 1, Q("8 mm")))
sketch6.addConstraint(Sketcher.Constraint("Angle", 2, Q("-2 deg")))
sketch6.addConstraint(Sketcher.Constraint("DistanceY", 8, 1, 8, 2, Q("4.5 mm")))
sketch6.addConstraint(Sketcher.Constraint("DistanceX", 7, 3, -1, 1, Q("117 mm")))
sketch6.addConstraint(Sketcher.Constraint("DistanceY", 23, 3, -1, 1, Q("112 mm")))
sketch6.addConstraint(Sketcher.Constraint("DistanceY", 25, 3, -1, 1, Q("95.5 mm")))
sketch6.addConstraint(Sketcher.Constraint("DistanceY", 7, 3, -1, 1, Q("83.75 mm")))
sketch6.addConstraint(Sketcher.Constraint("DistanceX", 22, 2, 22, 1, Q("0.578491 mm")))
sketch6.addConstraint(Sketcher.Constraint("DistanceY", 0, 2, -1, 1, Q("86.830601 mm")))
sketch6.addConstraint(Sketcher.Constraint("Distance", 2, Q("52.016411 mm")))
sketch6.addConstraint(Sketcher.Constraint("Distance", 28, Q("16.958161 mm")))
sketch6.addConstraint(Sketcher.Constraint("DistanceX", 26, 1, 26, 2, Q("5.053067 mm")))
sketch6.addConstraint(Sketcher.Constraint("DistanceX", 1, 3, -1, 1, Q("90.425942 mm")))
sketch6.addConstraint(Sketcher.Constraint("DistanceY", 5, 3, -1, 1, Q("104.345692 mm")))
sketch6.addConstraint(Sketcher.Constraint("DistanceX", 27, 3, -1, 1, Q("111.22286 mm")))
sketch6.setExpression("Constraints[86]", "Params.sketch6_radius")
sketch6.setExpression("Constraints[87]", "Params.sketch6_radius2")
sketch6.setExpression("Constraints[88]", "Params.sketch6_width")
sketch6.setExpression("Constraints[90]", "Params.sketch6_height")
pocket4 = body.newObject("PartDesign::Pocket", "Pocket003")
pocket4.Profile = sketch6
pocket4.Type = "ThroughAll"
pocket4.Reversed = True

doc.recompute()
